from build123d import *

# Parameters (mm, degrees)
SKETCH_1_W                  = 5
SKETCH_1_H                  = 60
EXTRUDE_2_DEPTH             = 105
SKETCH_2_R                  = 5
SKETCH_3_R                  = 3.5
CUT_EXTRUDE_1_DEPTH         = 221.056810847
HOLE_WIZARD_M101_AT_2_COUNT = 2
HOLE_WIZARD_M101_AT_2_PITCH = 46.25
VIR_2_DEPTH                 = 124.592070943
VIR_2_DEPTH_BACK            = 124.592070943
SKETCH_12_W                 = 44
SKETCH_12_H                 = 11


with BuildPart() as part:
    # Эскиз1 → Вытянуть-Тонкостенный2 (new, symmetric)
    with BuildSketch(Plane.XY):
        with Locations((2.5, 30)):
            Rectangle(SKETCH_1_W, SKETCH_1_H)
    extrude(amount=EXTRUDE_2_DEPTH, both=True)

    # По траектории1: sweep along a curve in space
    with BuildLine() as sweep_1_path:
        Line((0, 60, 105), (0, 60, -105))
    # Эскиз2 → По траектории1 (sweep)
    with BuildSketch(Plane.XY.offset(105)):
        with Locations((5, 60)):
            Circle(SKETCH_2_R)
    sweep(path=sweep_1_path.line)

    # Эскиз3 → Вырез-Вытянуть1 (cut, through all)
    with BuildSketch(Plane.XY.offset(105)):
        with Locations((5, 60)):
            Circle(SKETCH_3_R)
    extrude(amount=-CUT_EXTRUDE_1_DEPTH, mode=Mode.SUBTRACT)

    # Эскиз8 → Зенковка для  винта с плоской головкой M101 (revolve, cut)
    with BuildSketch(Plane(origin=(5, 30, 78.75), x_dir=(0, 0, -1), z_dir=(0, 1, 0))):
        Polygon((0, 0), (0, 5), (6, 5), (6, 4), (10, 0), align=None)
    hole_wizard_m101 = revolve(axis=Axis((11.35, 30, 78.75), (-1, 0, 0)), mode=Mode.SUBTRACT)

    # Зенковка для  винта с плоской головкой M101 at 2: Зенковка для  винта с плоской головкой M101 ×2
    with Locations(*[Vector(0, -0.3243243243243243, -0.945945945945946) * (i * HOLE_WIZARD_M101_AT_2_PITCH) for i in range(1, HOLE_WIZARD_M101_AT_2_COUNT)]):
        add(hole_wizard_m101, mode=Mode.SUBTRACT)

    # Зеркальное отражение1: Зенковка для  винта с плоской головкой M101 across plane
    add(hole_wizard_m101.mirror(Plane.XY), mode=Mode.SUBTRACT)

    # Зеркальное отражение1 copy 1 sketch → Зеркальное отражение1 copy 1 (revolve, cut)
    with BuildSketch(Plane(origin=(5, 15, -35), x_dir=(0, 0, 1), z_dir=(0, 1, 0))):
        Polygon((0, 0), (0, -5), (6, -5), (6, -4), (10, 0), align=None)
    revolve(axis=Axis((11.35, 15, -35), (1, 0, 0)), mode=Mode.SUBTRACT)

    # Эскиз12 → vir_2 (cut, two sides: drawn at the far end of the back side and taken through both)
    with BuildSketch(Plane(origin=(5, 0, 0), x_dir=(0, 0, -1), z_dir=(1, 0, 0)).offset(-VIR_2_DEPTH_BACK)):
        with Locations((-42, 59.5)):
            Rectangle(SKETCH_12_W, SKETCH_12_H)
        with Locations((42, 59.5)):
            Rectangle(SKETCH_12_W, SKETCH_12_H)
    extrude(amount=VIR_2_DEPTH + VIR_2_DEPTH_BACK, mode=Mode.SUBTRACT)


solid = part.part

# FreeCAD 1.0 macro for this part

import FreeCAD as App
import Part
import Sketcher

V = App.Vector
Q = App.Units.Quantity

doc = App.newDocument("Part")
body = doc.addObject("PartDesign::Body", "Body")

# Sketch on XY plane
sketch1 = doc.addObject("Sketcher::SketchObject", "Sketch")
body.addObject(sketch1)
sketch1.AttachmentSupport = (doc.XY_Plane, [""])
sketch1.MapMode = "FlatFace"
sketch1.addGeometry([
    Part.LineSegment(V(0, 60, 0), V(0, 0, 0)),
    Part.LineSegment(V(0, 0, 0), V(5, 0, 0)),
    Part.LineSegment(V(5, 0, 0), V(5, 60, 0)),
    Part.LineSegment(V(5, 60, 0), V(0, 60, 0)),
], False)
sketch1.addConstraint([
    Sketcher.Constraint("Coincident", 0, 2, 1, 1),
    Sketcher.Constraint("Coincident", 1, 2, 2, 1),
    Sketcher.Constraint("Coincident", 2, 2, 3, 1),
    Sketcher.Constraint("Coincident", 3, 2, 0, 1),
    Sketcher.Constraint("Vertical", 0),
    Sketcher.Constraint("Horizontal", 1),
    Sketcher.Constraint("Vertical", 2),
    Sketcher.Constraint("Horizontal", 3),
    Sketcher.Constraint("Coincident", 0, 2, -1, 1),
    Sketcher.Constraint("DistanceX", 1, 1, 1, 2, Q("5 mm")),
    Sketcher.Constraint("DistanceY", 0, 2, 0, 1, Q("60 mm")),
])
pad1 = doc.addObject("PartDesign::Pad", "Pad")
body.addObject(pad1)
pad1.Profile = sketch1
pad1.Length = 210
pad1.Midplane = True

# Sketch on XY plane
sketch2 = doc.addObject("Sketcher::SketchObject", "Sketch001")
body.addObject(sketch2)
sketch2.AttachmentSupport = (doc.XY_Plane, [""])
sketch2.MapMode = "FlatFace"
sketch2.AttachmentOffset = App.Placement(V(0, 0, 105), App.Rotation())
sketch2.addGeometry(Part.Circle(V(5, 60, 0), V(0, 0, 1), 5), False)
sketch2.addConstraint([
    Sketcher.Constraint("Diameter", 0, Q("10 mm")),
    Sketcher.Constraint("DistanceX", -1, 1, 0, 3, Q("5 mm")),
    Sketcher.Constraint("DistanceY", -1, 1, 0, 3, Q("60 mm")),
])

# Sketch on XZ plane
sketch3 = doc.addObject("Sketcher::SketchObject", "Sketch002")
body.addObject(sketch3)
sketch3.AttachmentSupport = (doc.XZ_Plane, [""])
sketch3.MapMode = "FlatFace"
sketch3.AttachmentOffset = App.Placement(V(0, 0, -60), App.Rotation())
sketch3.addGeometry(Part.LineSegment(V(0, 105, 0), V(0, -105, 0)), False)
sketch3.addConstraint([
    Sketcher.Constraint("Vertical", 0),
    Sketcher.Constraint("Symmetric", 0, 1, 0, 2, -1, 1),
    Sketcher.Constraint("DistanceY", 0, 2, 0, 1, Q("210 mm")),
])
doc.recompute()

additivepipe = doc.addObject("PartDesign::AdditivePipe", "AdditivePipe")
body.addObject(additivepipe)
additivepipe.Profile = sketch2
additivepipe.Spine = (sketch3, ["Edge1"])

# Sketch on XY plane
sketch4 = doc.addObject("Sketcher::SketchObject", "Sketch003")
body.addObject(sketch4)
sketch4.AttachmentSupport = (doc.XY_Plane, [""])
sketch4.MapMode = "FlatFace"
sketch4.AttachmentOffset = App.Placement(V(0, 0, 105), App.Rotation())
sketch4.addGeometry(Part.Circle(V(5, 60, 0), V(0, 0, 1), 3.5), False)
sketch4.addConstraint([
    Sketcher.Constraint("Diameter", 0, Q("7 mm")),
    Sketcher.Constraint("DistanceX", -1, 1, 0, 3, Q("5 mm")),
    Sketcher.Constraint("DistanceY", -1, 1, 0, 3, Q("60 mm")),
])
pocket1 = doc.addObject("PartDesign::Pocket", "Pocket")
body.addObject(pocket1)
pocket1.Profile = sketch4
pocket1.Type = "ThroughAll"

# Sketch on XZ plane
sketch5 = doc.addObject("Sketcher::SketchObject", "Sketch004")
body.addObject(sketch5)
sketch5.AttachmentSupport = (doc.XZ_Plane, [""])
sketch5.MapMode = "FlatFace"
sketch5.AttachmentOffset = App.Placement(V(0, 0, -30), App.Rotation())
sketch5.addGeometry([
    Part.LineSegment(V(0, 78.8, 0), V(5, 78.8, 0)),  # 0
    Part.LineSegment(V(5, 78.8, 0), V(5, 68.8, 0)),  # 1
    Part.LineSegment(V(5, 68.8, 0), V(1, 72.8, 0)),  # 2
    Part.LineSegment(V(1, 72.8, 0), V(0, 72.8, 0)),  # 3
    Part.LineSegment(V(0, 72.8, 0), V(0, 78.8, 0)),  # 4
], False)
sketch5.addGeometry(Part.LineSegment(V(5, 78.8, 0), V(0, 78.8, 0)), True)  # axis
sketch5.addConstraint([
    Sketcher.Constraint("Coincident", 0, 2, 1, 1),
    Sketcher.Constraint("Coincident", 1, 2, 2, 1),
    Sketcher.Constraint("Coincident", 2, 2, 3, 1),
    Sketcher.Constraint("Coincident", 3, 2, 4, 1),
    Sketcher.Constraint("Coincident", 4, 2, 0, 1),
    Sketcher.Constraint("Horizontal", 0),
    Sketcher.Constraint("Vertical", 1),
    Sketcher.Constraint("Horizontal", 3),
    Sketcher.Constraint("Vertical", 4),
    Sketcher.Constraint("Horizontal", 5),
    Sketcher.Constraint("Coincident", 5, 1, 0, 2),
    Sketcher.Constraint("PointOnObject", 3, 2, -2),
    Sketcher.Constraint("PointOnObject", 5, 2, -2),
    Sketcher.Constraint("DistanceX", 0, 1, 0, 2, Q("5 mm")),
    Sketcher.Constraint("DistanceX", 3, 2, 3, 1, Q("1 mm")),
    Sketcher.Constraint("DistanceY", 1, 2, 1, 1, Q("10 mm")),
    Sketcher.Constraint("DistanceY", 4, 1, 4, 2, Q("6 mm")),
    Sketcher.Constraint("DistanceY", -1, 1, 0, 2, Q("78.75 mm")),
])
groove = doc.addObject("PartDesign::Groove", "Groove")
body.addObject(groove)
groove.Profile = sketch5
groove.ReferenceAxis = (sketch5, ["Axis0"])
groove.Angle = 360
doc.recompute()

datumline = doc.addObject("PartDesign::Line", "DatumLine")
body.addObject(datumline)
datumline.Placement = App.Placement(V(0, 0, 0), App.Rotation(V(0, 0, 1), V(0, -0.324324324, -0.945945946)))
linearpattern = doc.addObject("PartDesign::LinearPattern", "LinearPattern")
body.addObject(linearpattern)
linearpattern.Originals = [groove]
linearpattern.Direction = (datumline, [""])
linearpattern.Mode = "offset"
linearpattern.Offset = 46.25
linearpattern.Occurrences = 2
body.Tip = linearpattern
doc.recompute()

mirrored = doc.addObject("PartDesign::Mirrored", "Mirrored")
body.addObject(mirrored)
mirrored.Originals = [groove]
mirrored.MirrorPlane = (doc.XY_Plane, [""])
body.Tip = mirrored

# Sketch on XZ plane
sketch6 = doc.addObject("Sketcher::SketchObject", "Sketch005")
body.addObject(sketch6)
sketch6.AttachmentSupport = (doc.XZ_Plane, [""])
sketch6.MapMode = "FlatFace"
sketch6.AttachmentOffset = App.Placement(V(0, 0, -15), App.Rotation())
sketch6.addGeometry([
    Part.LineSegment(V(5, -35, 0), V(0, -35, 0)),  # 0
    Part.LineSegment(V(0, -35, 0), V(0, -29, 0)),  # 1
    Part.LineSegment(V(0, -29, 0), V(1, -29, 0)),  # 2
    Part.LineSegment(V(1, -29, 0), V(5, -25, 0)),  # 3
    Part.LineSegment(V(5, -25, 0), V(5, -35, 0)),  # 4
], False)
sketch6.addGeometry(Part.LineSegment(V(0, -35, 0), V(5, -35, 0)), True)  # axis
sketch6.addConstraint([
    Sketcher.Constraint("Coincident", 0, 2, 1, 1),
    Sketcher.Constraint("Coincident", 1, 2, 2, 1),
    Sketcher.Constraint("Coincident", 2, 2, 3, 1),
    Sketcher.Constraint("Coincident", 3, 2, 4, 1),
    Sketcher.Constraint("Coincident", 4, 2, 0, 1),
    Sketcher.Constraint("Horizontal", 0),
    Sketcher.Constraint("Vertical", 1),
    Sketcher.Constraint("Horizontal", 2),
    Sketcher.Constraint("Vertical", 4),
    Sketcher.Constraint("Horizontal", 5),
    Sketcher.Constraint("Coincident", 5, 1, 0, 2),
    Sketcher.Constraint("PointOnObject", 0, 2, -2),
    Sketcher.Constraint("Vertical", 3, 2, 5, 2),
    Sketcher.Constraint("DistanceX", 0, 2, 0, 1, Q("5 mm")),
    Sketcher.Constraint("DistanceX", 2, 1, 2, 2, Q("1 mm")),
    Sketcher.Constraint("DistanceY", 1, 1, 1, 2, Q("6 mm")),
    Sketcher.Constraint("DistanceY", 4, 2, 4, 1, Q("10 mm")),
    Sketcher.Constraint("DistanceY", 0, 2, -1, 1, Q("35 mm")),
])
groove2 = doc.addObject("PartDesign::Groove", "Groove001")
body.addObject(groove2)
groove2.Profile = sketch6
groove2.ReferenceAxis = (sketch6, ["Axis0"])
groove2.Angle = 360

# Sketch on YZ plane
sketch7 = doc.addObject("Sketcher::SketchObject", "Sketch006")
body.addObject(sketch7)
sketch7.AttachmentSupport = (doc.YZ_Plane, [""])
sketch7.MapMode = "FlatFace"
sketch7.AttachmentOffset = App.Placement(V(0, 0, 5), App.Rotation())
sketch7.addGeometry([
    Part.LineSegment(V(65, 64, 0), V(54, 64, 0)),  # 0
    Part.LineSegment(V(54, 64, 0), V(54, 20, 0)),  # 1
    Part.LineSegment(V(54, 20, 0), V(65, 20, 0)),  # 2
    Part.LineSegment(V(65, 20, 0), V(65, 64, 0)),  # 3
    Part.LineSegment(V(65, -20, 0), V(54, -20, 0)),  # 4
    Part.LineSegment(V(54, -20, 0), V(54, -64, 0)),  # 5
    Part.LineSegment(V(54, -64, 0), V(65, -64, 0)),  # 6
    Part.LineSegment(V(65, -64, 0), V(65, -20, 0)),  # 7
], False)
sketch7.addConstraint([
    Sketcher.Constraint("Coincident", 0, 2, 1, 1),
    Sketcher.Constraint("Coincident", 1, 2, 2, 1),
    Sketcher.Constraint("Coincident", 2, 2, 3, 1),
    Sketcher.Constraint("Coincident", 3, 2, 0, 1),
    Sketcher.Constraint("Coincident", 4, 2, 5, 1),
    Sketcher.Constraint("Coincident", 5, 2, 6, 1),
    Sketcher.Constraint("Coincident", 6, 2, 7, 1),
    Sketcher.Constraint("Coincident", 7, 2, 4, 1),
    Sketcher.Constraint("Horizontal", 0),
    Sketcher.Constraint("Vertical", 1),
    Sketcher.Constraint("Horizontal", 2),
    Sketcher.Constraint("Vertical", 3),
    Sketcher.Constraint("Horizontal", 4),
    Sketcher.Constraint("Vertical", 5),
    Sketcher.Constraint("Horizontal", 6),
    Sketcher.Constraint("Vertical", 7),
    Sketcher.Constraint("Symmetric", 1, 2, 4, 2, -1),
    Sketcher.Constraint("Symmetric", 3, 2, 6, 2, -1),
    Sketcher.Constraint("DistanceX", 0, 2, 0, 1, Q("11 mm")),
    Sketcher.Constraint("DistanceY", 1, 2, 1, 1, Q("44 mm")),
    Sketcher.Constraint("DistanceX", -1, 1, 0, 2, Q("54 mm")),
    Sketcher.Constraint("DistanceY", -1, 1, 0, 2, Q("64 mm")),
])
pocket2 = doc.addObject("PartDesign::Pocket", "Pocket001")
body.addObject(pocket2)
pocket2.Profile = sketch7
pocket2.Type = "ThroughAll"
pocket2.Midplane = True

doc.recompute()
